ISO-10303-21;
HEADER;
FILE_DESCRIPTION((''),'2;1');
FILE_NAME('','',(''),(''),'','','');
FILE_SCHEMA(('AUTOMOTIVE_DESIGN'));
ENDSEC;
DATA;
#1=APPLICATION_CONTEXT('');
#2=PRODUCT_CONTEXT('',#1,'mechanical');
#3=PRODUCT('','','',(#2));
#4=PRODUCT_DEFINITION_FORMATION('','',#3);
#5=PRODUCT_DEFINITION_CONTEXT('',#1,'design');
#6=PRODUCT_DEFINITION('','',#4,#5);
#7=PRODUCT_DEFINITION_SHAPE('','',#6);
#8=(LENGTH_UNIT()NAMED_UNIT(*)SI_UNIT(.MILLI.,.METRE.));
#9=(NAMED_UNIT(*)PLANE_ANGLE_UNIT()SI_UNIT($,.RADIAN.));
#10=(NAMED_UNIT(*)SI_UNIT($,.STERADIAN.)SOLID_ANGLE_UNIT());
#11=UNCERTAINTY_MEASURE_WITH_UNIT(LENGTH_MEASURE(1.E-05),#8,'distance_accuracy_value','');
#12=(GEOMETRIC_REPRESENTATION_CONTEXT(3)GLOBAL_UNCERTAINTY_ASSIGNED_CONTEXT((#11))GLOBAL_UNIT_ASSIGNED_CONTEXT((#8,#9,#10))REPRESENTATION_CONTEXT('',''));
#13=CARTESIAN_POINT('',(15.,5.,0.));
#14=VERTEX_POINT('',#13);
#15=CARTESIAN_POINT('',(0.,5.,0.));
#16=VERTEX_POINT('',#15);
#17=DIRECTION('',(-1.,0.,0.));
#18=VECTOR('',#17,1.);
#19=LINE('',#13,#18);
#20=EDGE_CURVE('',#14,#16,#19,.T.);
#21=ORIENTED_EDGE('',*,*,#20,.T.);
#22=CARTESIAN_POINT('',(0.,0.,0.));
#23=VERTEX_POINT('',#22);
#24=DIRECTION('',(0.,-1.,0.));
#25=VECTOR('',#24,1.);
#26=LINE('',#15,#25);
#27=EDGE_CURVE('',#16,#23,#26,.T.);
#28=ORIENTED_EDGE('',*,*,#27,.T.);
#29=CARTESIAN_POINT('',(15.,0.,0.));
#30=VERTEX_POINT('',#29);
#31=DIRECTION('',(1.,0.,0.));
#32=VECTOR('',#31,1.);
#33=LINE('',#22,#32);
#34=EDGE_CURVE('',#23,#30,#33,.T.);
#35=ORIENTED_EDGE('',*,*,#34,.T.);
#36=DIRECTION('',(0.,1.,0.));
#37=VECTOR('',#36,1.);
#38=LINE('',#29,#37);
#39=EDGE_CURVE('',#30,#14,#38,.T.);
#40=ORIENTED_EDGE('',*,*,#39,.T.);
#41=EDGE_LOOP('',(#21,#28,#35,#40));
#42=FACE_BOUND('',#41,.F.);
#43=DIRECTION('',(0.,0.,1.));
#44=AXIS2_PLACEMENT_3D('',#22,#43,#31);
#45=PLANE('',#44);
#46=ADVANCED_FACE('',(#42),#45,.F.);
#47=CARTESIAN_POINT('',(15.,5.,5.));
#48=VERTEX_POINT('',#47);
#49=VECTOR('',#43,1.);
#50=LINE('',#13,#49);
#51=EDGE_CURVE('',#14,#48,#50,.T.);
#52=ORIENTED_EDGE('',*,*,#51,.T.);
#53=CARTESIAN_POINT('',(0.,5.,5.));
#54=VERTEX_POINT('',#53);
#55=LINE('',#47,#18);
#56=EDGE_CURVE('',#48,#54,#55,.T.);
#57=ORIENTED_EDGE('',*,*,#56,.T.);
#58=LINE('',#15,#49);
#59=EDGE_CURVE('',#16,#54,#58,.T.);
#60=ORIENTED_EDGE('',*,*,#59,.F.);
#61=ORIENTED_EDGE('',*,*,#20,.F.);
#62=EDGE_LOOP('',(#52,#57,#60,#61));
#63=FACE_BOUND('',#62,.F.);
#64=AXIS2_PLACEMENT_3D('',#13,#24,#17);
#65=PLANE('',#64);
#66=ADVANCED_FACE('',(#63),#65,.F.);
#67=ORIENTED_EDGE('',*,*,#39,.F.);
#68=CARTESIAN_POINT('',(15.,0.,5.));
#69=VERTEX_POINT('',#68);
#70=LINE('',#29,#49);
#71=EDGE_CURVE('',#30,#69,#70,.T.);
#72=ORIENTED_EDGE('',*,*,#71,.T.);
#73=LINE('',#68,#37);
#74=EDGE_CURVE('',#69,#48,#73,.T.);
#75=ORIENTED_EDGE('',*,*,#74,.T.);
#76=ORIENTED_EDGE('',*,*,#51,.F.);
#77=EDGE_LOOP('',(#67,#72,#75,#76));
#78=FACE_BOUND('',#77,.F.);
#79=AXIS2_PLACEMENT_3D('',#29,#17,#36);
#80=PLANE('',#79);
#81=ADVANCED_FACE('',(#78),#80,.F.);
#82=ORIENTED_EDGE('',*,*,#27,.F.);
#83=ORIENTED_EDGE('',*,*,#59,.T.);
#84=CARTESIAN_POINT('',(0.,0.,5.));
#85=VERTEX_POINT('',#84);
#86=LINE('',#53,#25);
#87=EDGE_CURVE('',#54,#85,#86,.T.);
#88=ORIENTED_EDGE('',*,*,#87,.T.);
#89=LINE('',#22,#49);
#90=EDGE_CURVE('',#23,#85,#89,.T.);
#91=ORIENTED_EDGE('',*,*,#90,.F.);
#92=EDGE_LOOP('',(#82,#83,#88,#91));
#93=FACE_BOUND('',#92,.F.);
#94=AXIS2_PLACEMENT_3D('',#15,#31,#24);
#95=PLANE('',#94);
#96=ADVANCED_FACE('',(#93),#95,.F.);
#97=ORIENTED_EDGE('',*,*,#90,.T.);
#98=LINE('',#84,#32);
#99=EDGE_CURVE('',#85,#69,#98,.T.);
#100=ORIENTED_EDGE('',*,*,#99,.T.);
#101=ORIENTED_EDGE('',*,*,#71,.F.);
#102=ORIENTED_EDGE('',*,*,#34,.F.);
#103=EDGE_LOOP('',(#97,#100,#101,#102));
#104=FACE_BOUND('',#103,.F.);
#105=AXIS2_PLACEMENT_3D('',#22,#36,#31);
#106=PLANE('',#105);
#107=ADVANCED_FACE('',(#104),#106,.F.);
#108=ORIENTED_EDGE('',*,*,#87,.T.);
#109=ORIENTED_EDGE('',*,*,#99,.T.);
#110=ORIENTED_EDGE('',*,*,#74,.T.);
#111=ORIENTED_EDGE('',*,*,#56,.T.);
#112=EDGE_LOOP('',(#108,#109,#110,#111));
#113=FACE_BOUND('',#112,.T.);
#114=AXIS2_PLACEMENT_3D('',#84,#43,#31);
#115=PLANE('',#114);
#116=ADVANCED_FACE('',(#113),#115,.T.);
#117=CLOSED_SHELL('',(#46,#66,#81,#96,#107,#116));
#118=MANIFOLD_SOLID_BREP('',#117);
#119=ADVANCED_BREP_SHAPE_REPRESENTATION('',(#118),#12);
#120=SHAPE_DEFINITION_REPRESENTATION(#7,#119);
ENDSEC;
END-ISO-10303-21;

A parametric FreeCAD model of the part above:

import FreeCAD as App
import Part
import Sketcher


def add_polygon(sketch, points):
    """Adds a closed chain of lines whose ends are joined by coincident constraints."""
    first, n = sketch.GeometryCount, len(points)
    for a, b in zip(points, points[1:] + points[:1]):
        sketch.addGeometry(Part.LineSegment(App.Vector(*a, 0), App.Vector(*b, 0)), False)
    for i in range(n):
        sketch.addConstraint(Sketcher.Constraint("Coincident", first + i, 2, first + (i + 1) % n, 1))

doc = App.newDocument("Part")
params = doc.addObject("Spreadsheet::Sheet", "Params")
for row, (alias, value) in enumerate([
    ("sketch1_width", "15 mm"),
    ("sketch1_height", "5 mm"),
    ("pad1_length", "5 mm"),
], start=1):
    params.set(f"A{row}", alias)
    params.set(f"B{row}", "=" + value)
    params.setAlias(f"B{row}", alias)

body = doc.addObject("PartDesign::Body", "Body")

sketch1 = body.newObject("Sketcher::SketchObject", "Sketch")
sketch1.AttachmentSupport = (doc.getObject("XY_Plane"), [""])
sketch1.MapMode = "FlatFace"
add_polygon(sketch1, [(0, 5), (0, 0), (15, 0), (15, 5)])
sketch1.addConstraint([
    Sketcher.Constraint("Vertical", 0),
    Sketcher.Constraint("Horizontal", 1),
    Sketcher.Constraint("Vertical", 2),
    Sketcher.Constraint("Horizontal", 3),
    Sketcher.Constraint("Coincident", 0, 2, -1, 1),
    Sketcher.Constraint("DistanceX", 1, 1, 1, 2, 15.0),
    Sketcher.Constraint("DistanceY", 0, 2, 0, 1, 5.0),
])
sketch1.setExpression("Constraints[9]", "Params.sketch1_width")
sketch1.setExpression("Constraints[10]", "Params.sketch1_height")
pad1 = body.newObject("PartDesign::Pad", "Pad")
pad1.Profile = sketch1
pad1.setExpression("Length", "Params.pad1_length")

doc.recompute()
